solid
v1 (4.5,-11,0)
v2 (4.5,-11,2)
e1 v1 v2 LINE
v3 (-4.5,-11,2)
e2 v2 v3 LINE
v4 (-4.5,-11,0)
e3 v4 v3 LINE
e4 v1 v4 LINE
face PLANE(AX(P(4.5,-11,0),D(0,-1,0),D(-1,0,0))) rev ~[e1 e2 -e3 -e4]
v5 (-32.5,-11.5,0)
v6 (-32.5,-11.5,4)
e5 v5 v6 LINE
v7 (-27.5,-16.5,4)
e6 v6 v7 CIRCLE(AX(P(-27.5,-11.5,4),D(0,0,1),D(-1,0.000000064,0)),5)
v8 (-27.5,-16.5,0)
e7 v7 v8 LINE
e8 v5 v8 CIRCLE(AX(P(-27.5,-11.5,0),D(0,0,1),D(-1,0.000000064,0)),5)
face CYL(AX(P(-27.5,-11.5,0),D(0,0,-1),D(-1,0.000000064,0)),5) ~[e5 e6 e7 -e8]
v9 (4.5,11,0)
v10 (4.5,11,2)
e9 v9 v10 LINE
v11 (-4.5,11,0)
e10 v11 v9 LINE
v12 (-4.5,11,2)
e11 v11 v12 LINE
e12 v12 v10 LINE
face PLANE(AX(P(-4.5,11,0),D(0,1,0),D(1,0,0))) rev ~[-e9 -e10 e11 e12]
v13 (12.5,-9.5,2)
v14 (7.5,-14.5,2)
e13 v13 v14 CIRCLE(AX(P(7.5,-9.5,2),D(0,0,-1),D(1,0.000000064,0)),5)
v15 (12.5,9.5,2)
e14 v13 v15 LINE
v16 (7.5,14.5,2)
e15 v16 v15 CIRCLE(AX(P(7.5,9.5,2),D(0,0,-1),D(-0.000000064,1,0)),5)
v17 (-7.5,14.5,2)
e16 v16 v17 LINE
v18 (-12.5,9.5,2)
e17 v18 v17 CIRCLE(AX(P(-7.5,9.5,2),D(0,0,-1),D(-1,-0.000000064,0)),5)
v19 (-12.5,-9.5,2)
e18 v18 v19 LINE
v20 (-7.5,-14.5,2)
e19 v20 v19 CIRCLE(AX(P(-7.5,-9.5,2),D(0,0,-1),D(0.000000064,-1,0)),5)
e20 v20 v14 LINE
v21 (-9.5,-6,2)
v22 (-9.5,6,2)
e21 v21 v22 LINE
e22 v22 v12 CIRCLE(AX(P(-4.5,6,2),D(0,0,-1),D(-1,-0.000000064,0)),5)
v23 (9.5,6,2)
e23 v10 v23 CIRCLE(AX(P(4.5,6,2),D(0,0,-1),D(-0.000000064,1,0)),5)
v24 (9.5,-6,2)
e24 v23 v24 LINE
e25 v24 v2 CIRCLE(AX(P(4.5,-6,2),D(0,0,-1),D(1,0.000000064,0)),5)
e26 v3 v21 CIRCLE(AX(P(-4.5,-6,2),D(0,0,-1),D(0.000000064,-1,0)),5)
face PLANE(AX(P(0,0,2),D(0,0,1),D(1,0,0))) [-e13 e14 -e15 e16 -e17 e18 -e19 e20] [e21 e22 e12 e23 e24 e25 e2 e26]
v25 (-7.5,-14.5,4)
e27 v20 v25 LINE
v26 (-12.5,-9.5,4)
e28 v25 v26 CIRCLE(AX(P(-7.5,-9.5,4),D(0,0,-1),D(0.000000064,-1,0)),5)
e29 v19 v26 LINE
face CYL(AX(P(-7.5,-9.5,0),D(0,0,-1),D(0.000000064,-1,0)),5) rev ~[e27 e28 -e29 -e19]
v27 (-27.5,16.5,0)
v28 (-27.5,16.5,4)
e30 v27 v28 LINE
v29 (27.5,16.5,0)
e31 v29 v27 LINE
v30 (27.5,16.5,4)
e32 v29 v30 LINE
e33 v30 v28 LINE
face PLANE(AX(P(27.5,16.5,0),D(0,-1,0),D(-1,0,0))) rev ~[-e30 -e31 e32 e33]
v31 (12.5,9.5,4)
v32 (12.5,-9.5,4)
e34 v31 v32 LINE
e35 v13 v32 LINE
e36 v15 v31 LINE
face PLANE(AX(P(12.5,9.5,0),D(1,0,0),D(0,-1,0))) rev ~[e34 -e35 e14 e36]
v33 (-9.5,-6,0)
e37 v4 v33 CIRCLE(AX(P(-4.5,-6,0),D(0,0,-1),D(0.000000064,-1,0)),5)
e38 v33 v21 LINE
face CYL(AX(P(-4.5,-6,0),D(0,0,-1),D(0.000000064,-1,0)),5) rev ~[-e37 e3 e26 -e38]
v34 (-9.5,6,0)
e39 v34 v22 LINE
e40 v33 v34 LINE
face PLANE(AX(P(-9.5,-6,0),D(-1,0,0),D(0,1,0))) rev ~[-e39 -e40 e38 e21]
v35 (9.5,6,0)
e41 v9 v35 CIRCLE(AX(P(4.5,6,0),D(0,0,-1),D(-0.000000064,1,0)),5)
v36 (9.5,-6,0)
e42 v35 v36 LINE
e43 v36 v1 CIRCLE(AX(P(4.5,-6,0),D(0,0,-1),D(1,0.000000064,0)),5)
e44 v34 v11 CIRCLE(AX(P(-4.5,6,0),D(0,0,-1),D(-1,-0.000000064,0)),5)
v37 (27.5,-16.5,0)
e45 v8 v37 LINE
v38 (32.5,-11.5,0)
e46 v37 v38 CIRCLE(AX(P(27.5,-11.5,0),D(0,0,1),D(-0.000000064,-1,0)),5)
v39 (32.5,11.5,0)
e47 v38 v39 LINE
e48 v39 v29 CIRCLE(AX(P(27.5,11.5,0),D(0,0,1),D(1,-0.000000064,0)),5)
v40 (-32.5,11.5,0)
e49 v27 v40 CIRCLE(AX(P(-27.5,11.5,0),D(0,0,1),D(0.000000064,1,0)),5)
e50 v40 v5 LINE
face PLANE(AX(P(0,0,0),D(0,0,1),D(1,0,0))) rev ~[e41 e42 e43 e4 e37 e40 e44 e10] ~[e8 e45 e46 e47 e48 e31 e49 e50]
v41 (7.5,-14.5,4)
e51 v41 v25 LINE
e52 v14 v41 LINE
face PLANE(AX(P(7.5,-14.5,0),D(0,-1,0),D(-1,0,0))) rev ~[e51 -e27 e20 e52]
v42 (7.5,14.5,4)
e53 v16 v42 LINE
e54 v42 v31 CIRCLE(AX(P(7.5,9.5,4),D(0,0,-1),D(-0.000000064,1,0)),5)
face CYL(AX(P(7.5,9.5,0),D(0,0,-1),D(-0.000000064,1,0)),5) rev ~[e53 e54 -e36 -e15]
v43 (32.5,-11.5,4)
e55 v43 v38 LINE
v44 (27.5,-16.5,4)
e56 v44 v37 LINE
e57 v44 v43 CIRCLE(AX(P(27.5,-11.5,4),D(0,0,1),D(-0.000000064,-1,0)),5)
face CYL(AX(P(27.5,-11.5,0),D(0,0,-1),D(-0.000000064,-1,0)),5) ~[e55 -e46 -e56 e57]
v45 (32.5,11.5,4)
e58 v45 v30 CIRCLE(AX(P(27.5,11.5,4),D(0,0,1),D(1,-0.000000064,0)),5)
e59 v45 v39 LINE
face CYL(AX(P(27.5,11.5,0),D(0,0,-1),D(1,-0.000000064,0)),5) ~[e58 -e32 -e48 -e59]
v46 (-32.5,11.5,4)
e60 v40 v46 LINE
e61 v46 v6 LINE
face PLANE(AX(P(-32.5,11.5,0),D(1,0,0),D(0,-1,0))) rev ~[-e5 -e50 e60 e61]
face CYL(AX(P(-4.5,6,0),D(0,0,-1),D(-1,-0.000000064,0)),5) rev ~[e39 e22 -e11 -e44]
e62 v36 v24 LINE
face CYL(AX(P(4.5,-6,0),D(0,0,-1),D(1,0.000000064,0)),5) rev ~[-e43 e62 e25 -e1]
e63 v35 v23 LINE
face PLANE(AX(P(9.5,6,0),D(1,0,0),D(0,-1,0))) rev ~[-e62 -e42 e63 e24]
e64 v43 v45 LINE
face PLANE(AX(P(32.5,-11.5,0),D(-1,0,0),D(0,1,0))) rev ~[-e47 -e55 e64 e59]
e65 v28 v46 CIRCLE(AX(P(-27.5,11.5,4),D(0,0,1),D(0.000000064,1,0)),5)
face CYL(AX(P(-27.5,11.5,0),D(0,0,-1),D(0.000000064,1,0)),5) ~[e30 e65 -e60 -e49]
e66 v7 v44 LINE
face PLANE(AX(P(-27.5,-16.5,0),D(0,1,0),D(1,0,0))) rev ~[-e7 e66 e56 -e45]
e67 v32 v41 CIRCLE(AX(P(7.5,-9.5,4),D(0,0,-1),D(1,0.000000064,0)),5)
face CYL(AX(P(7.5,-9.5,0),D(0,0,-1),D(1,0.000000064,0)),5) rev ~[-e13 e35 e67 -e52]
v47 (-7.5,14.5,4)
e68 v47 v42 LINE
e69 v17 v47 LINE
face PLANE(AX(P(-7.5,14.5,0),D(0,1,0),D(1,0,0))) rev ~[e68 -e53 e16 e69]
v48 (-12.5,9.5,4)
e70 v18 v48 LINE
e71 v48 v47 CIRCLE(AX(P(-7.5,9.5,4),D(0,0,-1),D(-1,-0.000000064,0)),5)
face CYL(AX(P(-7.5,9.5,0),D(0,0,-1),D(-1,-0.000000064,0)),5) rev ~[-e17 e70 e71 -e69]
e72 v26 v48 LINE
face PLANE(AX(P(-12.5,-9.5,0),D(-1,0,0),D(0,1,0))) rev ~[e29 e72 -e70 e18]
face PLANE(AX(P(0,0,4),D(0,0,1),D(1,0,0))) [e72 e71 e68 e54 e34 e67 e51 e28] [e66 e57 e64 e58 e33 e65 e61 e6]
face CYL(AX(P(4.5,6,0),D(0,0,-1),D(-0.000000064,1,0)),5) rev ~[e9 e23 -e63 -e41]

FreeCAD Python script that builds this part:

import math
import FreeCAD as App
import Part
import Sketcher
Q = App.Units.Quantity

doc = App.newDocument("Part")
body = doc.addObject("PartDesign::Body", "Body")

# Sketch on XY plane
sketch1 = body.newObject("Sketcher::SketchObject", "Sketch")
sketch1.AttachmentSupport = (doc.getObject("XY_Plane"), [""])
sketch1.MapMode = "FlatFace"
sketch1.addGeometry(Part.ArcOfCircle(Part.Circle(App.Vector(27.5, 11.5, 0), App.Vector(0, 0, 1), 5), math.radians(0), math.radians(90)), False)
sketch1.addGeometry(Part.LineSegment(App.Vector(27.5, 16.5, 0), App.Vector(-27.5, 16.5, 0)), False)
sketch1.addGeometry(Part.ArcOfCircle(Part.Circle(App.Vector(-27.5, 11.5, 0), App.Vector(0, 0, 1), 5), math.radians(90), math.radians(180)), False)
sketch1.addGeometry(Part.LineSegment(App.Vector(-32.5, 11.5, 0), App.Vector(-32.5, -11.5, 0)), False)
sketch1.addGeometry(Part.ArcOfCircle(Part.Circle(App.Vector(-27.5, -11.5, 0), App.Vector(0, 0, 1), 5), math.radians(180), math.radians(270)), False)
sketch1.addGeometry(Part.LineSegment(App.Vector(-27.5, -16.5, 0), App.Vector(27.5, -16.5, 0)), False)
sketch1.addGeometry(Part.ArcOfCircle(Part.Circle(App.Vector(27.5, -11.5, 0), App.Vector(0, 0, 1), 5), math.radians(-90), math.radians(0)), False)
sketch1.addGeometry(Part.LineSegment(App.Vector(32.5, -11.5, 0), App.Vector(32.5, 11.5, 0)), False)
sketch1.addGeometry(Part.ArcOfCircle(Part.Circle(App.Vector(-4.5, 6, 0), App.Vector(0, 0, 1), 5), math.radians(90), math.radians(180)), False)
sketch1.addGeometry(Part.LineSegment(App.Vector(-4.5, 11, 0), App.Vector(4.5, 11, 0)), False)
sketch1.addGeometry(Part.ArcOfCircle(Part.Circle(App.Vector(4.5, 6, 0), App.Vector(0, 0, 1), 5), math.radians(0), math.radians(90)), False)
sketch1.addGeometry(Part.LineSegment(App.Vector(9.5, 6, 0), App.Vector(9.5, -6, 0)), False)
sketch1.addGeometry(Part.ArcOfCircle(Part.Circle(App.Vector(4.5, -6, 0), App.Vector(0, 0, 1), 5), math.radians(-90), math.radians(0)), False)
sketch1.addGeometry(Part.LineSegment(App.Vector(4.5, -11, 0), App.Vector(-4.5, -11, 0)), False)
sketch1.addGeometry(Part.ArcOfCircle(Part.Circle(App.Vector(-4.5, -6, 0), App.Vector(0, 0, 1), 5), math.radians(180), math.radians(270)), False)
sketch1.addGeometry(Part.LineSegment(App.Vector(-9.5, -6, 0), App.Vector(-9.5, 6, 0)), False)
sketch1.addConstraint(Sketcher.Constraint("Tangent", 0, 2, 1, 1))
sketch1.addConstraint(Sketcher.Constraint("Tangent", 1, 2, 2, 1))
sketch1.addConstraint(Sketcher.Constraint("Tangent", 2, 2, 3, 1))
sketch1.addConstraint(Sketcher.Constraint("Tangent", 3, 2, 4, 1))
sketch1.addConstraint(Sketcher.Constraint("Tangent", 4, 2, 5, 1))
sketch1.addConstraint(Sketcher.Constraint("Tangent", 5, 2, 6, 1))
sketch1.addConstraint(Sketcher.Constraint("Tangent", 6, 2, 7, 1))
sketch1.addConstraint(Sketcher.Constraint("Tangent", 7, 2, 0, 1))
sketch1.addConstraint(Sketcher.Constraint("Tangent", 8, 1, 9, 1))
sketch1.addConstraint(Sketcher.Constraint("Tangent", 9, 2, 10, 2))
sketch1.addConstraint(Sketcher.Constraint("Tangent", 10, 1, 11, 1))
sketch1.addConstraint(Sketcher.Constraint("Tangent", 11, 2, 12, 2))
sketch1.addConstraint(Sketcher.Constraint("Tangent", 12, 1, 13, 1))
sketch1.addConstraint(Sketcher.Constraint("Tangent", 13, 2, 14, 2))
sketch1.addConstraint(Sketcher.Constraint("Tangent", 14, 1, 15, 1))
sketch1.addConstraint(Sketcher.Constraint("Tangent", 15, 2, 8, 2))
sketch1.addConstraint(Sketcher.Constraint("Horizontal", 1))
sketch1.addConstraint(Sketcher.Constraint("Vertical", 3))
sketch1.addConstraint(Sketcher.Constraint("Horizontal", 5))
sketch1.addConstraint(Sketcher.Constraint("Vertical", 7))
sketch1.addConstraint(Sketcher.Constraint("Horizontal", 9))
sketch1.addConstraint(Sketcher.Constraint("Vertical", 11))
sketch1.addConstraint(Sketcher.Constraint("Horizontal", 13))
sketch1.addConstraint(Sketcher.Constraint("Vertical", 15))
sketch1.addConstraint(Sketcher.Constraint("Equal", 0, 2))
sketch1.addConstraint(Sketcher.Constraint("Equal", 2, 4))
sketch1.addConstraint(Sketcher.Constraint("Equal", 4, 6))
sketch1.addConstraint(Sketcher.Constraint("Equal", 6, 8))
sketch1.addConstraint(Sketcher.Constraint("Equal", 8, 10))
sketch1.addConstraint(Sketcher.Constraint("Equal", 10, 12))
sketch1.addConstraint(Sketcher.Constraint("Equal", 12, 14))
sketch1.addConstraint(Sketcher.Constraint("Symmetric", 0, 3, 4, 3, -1, 1))
sketch1.addConstraint(Sketcher.Constraint("Symmetric", 8, 3, 12, 3, -1, 1))
sketch1.addConstraint(Sketcher.Constraint("Radius", 0, Q("5 mm")))
sketch1.addConstraint(Sketcher.Constraint("DistanceX", 1, 2, 1, 1, Q("55 mm")))
sketch1.addConstraint(Sketcher.Constraint("DistanceX", 9, 1, 9, 2, Q("9 mm")))
sketch1.addConstraint(Sketcher.Constraint("DistanceY", 3, 2, 3, 1, Q("23 mm")))
sketch1.addConstraint(Sketcher.Constraint("DistanceY", 11, 2, 11, 1, Q("12 mm")))
pad1 = body.newObject("PartDesign::Pad", "Pad")
pad1.Profile = sketch1
pad1.Length = 2

# Sketch on XY plane
sketch2 = body.newObject("Sketcher::SketchObject", "Sketch001")
sketch2.AttachmentSupport = (doc.getObject("XY_Plane"), [""])
sketch2.MapMode = "FlatFace"
sketch2.addGeometry(Part.ArcOfCircle(Part.Circle(App.Vector(27.5, 11.5, 0), App.Vector(0, 0, 1), 5), math.radians(0), math.radians(90)), False)
sketch2.addGeometry(Part.LineSegment(App.Vector(27.5, 16.5, 0), App.Vector(-27.5, 16.5, 0)), False)
sketch2.addGeometry(Part.ArcOfCircle(Part.Circle(App.Vector(-27.5, 11.5, 0), App.Vector(0, 0, 1), 5), math.radians(90), math.radians(180)), False)
sketch2.addGeometry(Part.LineSegment(App.Vector(-32.5, 11.5, 0), App.Vector(-32.5, -11.5, 0)), False)
sketch2.addGeometry(Part.ArcOfCircle(Part.Circle(App.Vector(-27.5, -11.5, 0), App.Vector(0, 0, 1), 5), math.radians(180), math.radians(270)), False)
sketch2.addGeometry(Part.LineSegment(App.Vector(-27.5, -16.5, 0), App.Vector(27.5, -16.5, 0)), False)
sketch2.addGeometry(Part.ArcOfCircle(Part.Circle(App.Vector(27.5, -11.5, 0), App.Vector(0, 0, 1), 5), math.radians(-90), math.radians(0)), False)
sketch2.addGeometry(Part.LineSegment(App.Vector(32.5, -11.5, 0), App.Vector(32.5, 11.5, 0)), False)
sketch2.addGeometry(Part.ArcOfCircle(Part.Circle(App.Vector(-7.5, 9.5, 0), App.Vector(0, 0, 1), 5), math.radians(90), math.radians(180)), False)
sketch2.addGeometry(Part.LineSegment(App.Vector(-7.5, 14.5, 0), App.Vector(7.5, 14.5, 0)), False)
sketch2.addGeometry(Part.ArcOfCircle(Part.Circle(App.Vector(7.5, 9.5, 0), App.Vector(0, 0, 1), 5), math.radians(0), math.radians(90)), False)
sketch2.addGeometry(Part.LineSegment(App.Vector(12.5, 9.5, 0), App.Vector(12.5, -9.5, 0)), False)
sketch2.addGeometry(Part.ArcOfCircle(Part.Circle(App.Vector(7.5, -9.5, 0), App.Vector(0, 0, 1), 5), math.radians(-90), math.radians(0)), False)
sketch2.addGeometry(Part.LineSegment(App.Vector(7.5, -14.5, 0), App.Vector(-7.5, -14.5, 0)), False)
sketch2.addGeometry(Part.ArcOfCircle(Part.Circle(App.Vector(-7.5, -9.5, 0), App.Vector(0, 0, 1), 5), math.radians(180), math.radians(270)), False)
sketch2.addGeometry(Part.LineSegment(App.Vector(-12.5, -9.5, 0), App.Vector(-12.5, 9.5, 0)), False)
sketch2.addConstraint(Sketcher.Constraint("Tangent", 0, 2, 1, 1))
sketch2.addConstraint(Sketcher.Constraint("Tangent", 1, 2, 2, 1))
sketch2.addConstraint(Sketcher.Constraint("Tangent", 2, 2, 3, 1))
sketch2.addConstraint(Sketcher.Constraint("Tangent", 3, 2, 4, 1))
sketch2.addConstraint(Sketcher.Constraint("Tangent", 4, 2, 5, 1))
sketch2.addConstraint(Sketcher.Constraint("Tangent", 5, 2, 6, 1))
sketch2.addConstraint(Sketcher.Constraint("Tangent", 6, 2, 7, 1))
sketch2.addConstraint(Sketcher.Constraint("Tangent", 7, 2, 0, 1))
sketch2.addConstraint(Sketcher.Constraint("Tangent", 8, 1, 9, 1))
sketch2.addConstraint(Sketcher.Constraint("Tangent", 9, 2, 10, 2))
sketch2.addConstraint(Sketcher.Constraint("Tangent", 10, 1, 11, 1))
sketch2.addConstraint(Sketcher.Constraint("Tangent", 11, 2, 12, 2))
sketch2.addConstraint(Sketcher.Constraint("Tangent", 12, 1, 13, 1))
sketch2.addConstraint(Sketcher.Constraint("Tangent", 13, 2, 14, 2))
sketch2.addConstraint(Sketcher.Constraint("Tangent", 14, 1, 15, 1))
sketch2.addConstraint(Sketcher.Constraint("Tangent", 15, 2, 8, 2))
sketch2.addConstraint(Sketcher.Constraint("Horizontal", 1))
sketch2.addConstraint(Sketcher.Constraint("Vertical", 3))
sketch2.addConstraint(Sketcher.Constraint("Horizontal", 5))
sketch2.addConstraint(Sketcher.Constraint("Vertical", 7))
sketch2.addConstraint(Sketcher.Constraint("Horizontal", 9))
sketch2.addConstraint(Sketcher.Constraint("Vertical", 11))
sketch2.addConstraint(Sketcher.Constraint("Horizontal", 13))
sketch2.addConstraint(Sketcher.Constraint("Vertical", 15))
sketch2.addConstraint(Sketcher.Constraint("Equal", 0, 2))
sketch2.addConstraint(Sketcher.Constraint("Equal", 2, 4))
sketch2.addConstraint(Sketcher.Constraint("Equal", 4, 6))
sketch2.addConstraint(Sketcher.Constraint("Equal", 6, 8))
sketch2.addConstraint(Sketcher.Constraint("Equal", 8, 10))
sketch2.addConstraint(Sketcher.Constraint("Equal", 10, 12))
sketch2.addConstraint(Sketcher.Constraint("Equal", 12, 14))
sketch2.addConstraint(Sketcher.Constraint("Symmetric", 0, 3, 4, 3, -1, 1))
sketch2.addConstraint(Sketcher.Constraint("Symmetric", 8, 3, 12, 3, -1, 1))
sketch2.addConstraint(Sketcher.Constraint("Radius", 0, Q("5 mm")))
sketch2.addConstraint(Sketcher.Constraint("DistanceX", 1, 2, 1, 1, Q("55 mm")))
sketch2.addConstraint(Sketcher.Constraint("DistanceX", 9, 1, 9, 2, Q("15 mm")))
sketch2.addConstraint(Sketcher.Constraint("DistanceY", 3, 2, 3, 1, Q("23 mm")))
sketch2.addConstraint(Sketcher.Constraint("DistanceY", 11, 2, 11, 1, Q("19 mm")))
pad2 = body.newObject("PartDesign::Pad", "Pad001")
pad2.Profile = sketch2
pad2.Length = 4

doc.recompute()
